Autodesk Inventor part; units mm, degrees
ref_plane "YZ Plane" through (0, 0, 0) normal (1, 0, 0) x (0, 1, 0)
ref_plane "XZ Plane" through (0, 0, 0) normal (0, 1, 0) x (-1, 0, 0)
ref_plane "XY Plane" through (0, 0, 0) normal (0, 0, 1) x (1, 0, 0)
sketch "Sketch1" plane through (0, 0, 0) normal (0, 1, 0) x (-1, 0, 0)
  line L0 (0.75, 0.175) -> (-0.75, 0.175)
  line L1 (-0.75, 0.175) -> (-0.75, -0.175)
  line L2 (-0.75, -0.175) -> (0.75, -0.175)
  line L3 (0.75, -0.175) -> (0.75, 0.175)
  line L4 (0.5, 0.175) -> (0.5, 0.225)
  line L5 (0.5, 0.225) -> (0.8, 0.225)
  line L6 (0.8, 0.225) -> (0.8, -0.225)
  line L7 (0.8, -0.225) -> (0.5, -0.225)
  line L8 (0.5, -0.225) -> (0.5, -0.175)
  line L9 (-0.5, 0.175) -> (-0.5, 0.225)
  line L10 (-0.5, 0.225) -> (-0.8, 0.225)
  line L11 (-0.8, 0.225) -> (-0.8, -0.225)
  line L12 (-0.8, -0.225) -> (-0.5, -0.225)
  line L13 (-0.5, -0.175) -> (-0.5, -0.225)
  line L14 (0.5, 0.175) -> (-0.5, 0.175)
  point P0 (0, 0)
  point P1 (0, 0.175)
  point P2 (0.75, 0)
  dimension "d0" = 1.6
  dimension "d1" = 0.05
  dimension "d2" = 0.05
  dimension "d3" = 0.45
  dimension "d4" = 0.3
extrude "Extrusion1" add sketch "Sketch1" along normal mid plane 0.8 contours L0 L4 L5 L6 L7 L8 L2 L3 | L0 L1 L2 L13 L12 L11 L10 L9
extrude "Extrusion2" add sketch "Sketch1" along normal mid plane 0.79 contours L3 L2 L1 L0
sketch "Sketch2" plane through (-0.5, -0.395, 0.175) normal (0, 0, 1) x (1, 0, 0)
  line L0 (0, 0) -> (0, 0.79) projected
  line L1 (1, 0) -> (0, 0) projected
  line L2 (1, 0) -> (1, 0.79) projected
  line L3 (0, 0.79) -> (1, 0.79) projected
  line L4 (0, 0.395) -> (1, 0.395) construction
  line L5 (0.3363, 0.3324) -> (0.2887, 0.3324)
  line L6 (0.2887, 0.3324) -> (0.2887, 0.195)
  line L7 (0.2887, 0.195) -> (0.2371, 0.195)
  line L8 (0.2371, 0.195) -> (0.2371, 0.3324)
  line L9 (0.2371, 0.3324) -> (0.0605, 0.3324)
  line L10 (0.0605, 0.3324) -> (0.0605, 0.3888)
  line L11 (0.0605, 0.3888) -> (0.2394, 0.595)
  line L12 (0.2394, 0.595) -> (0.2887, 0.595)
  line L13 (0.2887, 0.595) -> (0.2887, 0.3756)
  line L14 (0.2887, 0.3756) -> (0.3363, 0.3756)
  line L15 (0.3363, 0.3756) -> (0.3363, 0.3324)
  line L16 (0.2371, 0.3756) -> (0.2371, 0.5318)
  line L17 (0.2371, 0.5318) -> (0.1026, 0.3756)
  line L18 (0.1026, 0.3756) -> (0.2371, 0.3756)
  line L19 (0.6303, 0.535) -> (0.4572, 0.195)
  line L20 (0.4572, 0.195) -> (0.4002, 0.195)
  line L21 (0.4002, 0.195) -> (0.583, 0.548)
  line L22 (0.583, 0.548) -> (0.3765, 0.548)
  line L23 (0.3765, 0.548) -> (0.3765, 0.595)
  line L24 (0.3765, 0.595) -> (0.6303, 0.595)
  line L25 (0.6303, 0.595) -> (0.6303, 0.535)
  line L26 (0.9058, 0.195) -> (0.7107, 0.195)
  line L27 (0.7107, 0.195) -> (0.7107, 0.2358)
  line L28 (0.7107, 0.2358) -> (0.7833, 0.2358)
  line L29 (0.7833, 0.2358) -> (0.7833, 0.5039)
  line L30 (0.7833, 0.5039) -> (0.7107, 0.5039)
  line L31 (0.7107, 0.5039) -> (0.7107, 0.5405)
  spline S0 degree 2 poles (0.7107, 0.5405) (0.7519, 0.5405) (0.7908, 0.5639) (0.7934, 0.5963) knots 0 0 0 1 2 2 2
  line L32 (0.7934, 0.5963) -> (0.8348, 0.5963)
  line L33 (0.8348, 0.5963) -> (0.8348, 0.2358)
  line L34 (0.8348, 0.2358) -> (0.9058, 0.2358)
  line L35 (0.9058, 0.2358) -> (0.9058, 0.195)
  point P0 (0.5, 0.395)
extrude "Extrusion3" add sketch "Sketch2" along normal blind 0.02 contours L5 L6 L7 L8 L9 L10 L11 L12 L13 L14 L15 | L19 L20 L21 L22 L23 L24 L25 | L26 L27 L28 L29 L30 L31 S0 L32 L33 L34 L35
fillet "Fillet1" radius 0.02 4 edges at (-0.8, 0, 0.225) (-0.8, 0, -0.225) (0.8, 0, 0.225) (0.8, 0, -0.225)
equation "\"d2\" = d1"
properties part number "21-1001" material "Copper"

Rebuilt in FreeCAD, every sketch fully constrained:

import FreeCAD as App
import Part
import Sketcher
Q = App.Units.Quantity


def edges_at(feature, points):
    """Names of the edges that pass closest to the given points."""
    edges = feature.Shape.Edges
    near = lambda p: min(range(len(edges)), key=lambda i: edges[i].distToShape(Part.Vertex(*p))[0])
    return sorted({f"Edge{near(p) + 1}" for p in points})


def add_polygon(sketch, points):
    """Adds a closed chain of lines whose ends are joined by coincident constraints."""
    first, n = sketch.GeometryCount, len(points)
    for a, b in zip(points, points[1:] + points[:1]):
        sketch.addGeometry(Part.LineSegment(App.Vector(*a, 0), App.Vector(*b, 0)), False)
    for i in range(n):
        sketch.addConstraint(Sketcher.Constraint("Coincident", first + i, 2, first + (i + 1) % n, 1))

doc = App.newDocument("Part")
params = doc.addObject("Spreadsheet::Sheet", "Params")
for row, (alias, value) in enumerate([
    ("sketch1_width", "0.3 mm"),
    ("sketch1_height", "0.05 mm"),
    ("sketch1_height2", "0.45 mm"),
    ("pad1_length", "0.8 mm"),
    ("sketch2_width", "1.5 mm"),
    ("sketch2_height", "0.35 mm"),
    ("pad2_length", "0.79 mm"),
    ("sketch3_height", "0.06 mm"),
    ("pad3_length", "0.02 mm"),
    ("fillet_radius", "0.02 mm"),
], start=1):
    params.set(f"A{row}", alias)
    params.set(f"B{row}", "=" + value)
    params.setAlias(f"B{row}", alias)

body = doc.addObject("PartDesign::Body", "Body")
body.AllowCompound = True

# Sketch on XZ plane
sketch1 = body.newObject("Sketcher::SketchObject", "Sketch")
sketch1.AttachmentSupport = (doc.getObject("XZ_Plane"), [""])
sketch1.MapMode = "FlatFace"
add_polygon(sketch1, [(-0.5, 0.17), (-0.75, 0.17), (-0.75, -0.17), (-0.5, -0.17), (-0.5, -0.23), (-0.8, -0.23), (-0.8, 0.23), (-0.5, 0.23)])  # lines 0-7
add_polygon(sketch1, [(0.75, 0.17), (0.5, 0.17), (0.5, 0.23), (0.8, 0.23), (0.8, -0.23), (0.5, -0.23), (0.5, -0.17), (0.75, -0.17)])  # lines 8-15
sketch1.addConstraint([
    Sketcher.Constraint("Horizontal", 0),
    Sketcher.Constraint("Vertical", 1),
    Sketcher.Constraint("Horizontal", 2),
    Sketcher.Constraint("Vertical", 3),
    Sketcher.Constraint("Horizontal", 4),
    Sketcher.Constraint("Vertical", 5),
    Sketcher.Constraint("Horizontal", 6),
    Sketcher.Constraint("Vertical", 7),
    Sketcher.Constraint("Horizontal", 8),
    Sketcher.Constraint("Vertical", 9),
    Sketcher.Constraint("Horizontal", 10),
    Sketcher.Constraint("Vertical", 11),
    Sketcher.Constraint("Horizontal", 12),
    Sketcher.Constraint("Vertical", 13),
    Sketcher.Constraint("Horizontal", 14),
    Sketcher.Constraint("Vertical", 15),
    Sketcher.Constraint("Symmetric", 2, 2, 8, 2, -1, 1),
    Sketcher.Constraint("Symmetric", 4, 2, 10, 2, -1, 1),
    Sketcher.Constraint("Symmetric", 6, 2, 12, 2, -1, 1),
    Sketcher.Constraint("Symmetric", 0, 2, 14, 2, -1, 1),
    Sketcher.Constraint("Symmetric", 7, 2, 8, 2, -2),
    Sketcher.Constraint("Horizontal", 6, 2, 9, 2),
    Sketcher.Constraint("DistanceX", 4, 2, 4, 1, Q("0.3 mm")),
    Sketcher.Constraint("DistanceY", 3, 2, 3, 1, Q("0.05 mm")),
    Sketcher.Constraint("DistanceY", 5, 1, 5, 2, Q("0.45 mm")),
    Sketcher.Constraint("DistanceX", 4, 2, 1, 2, Q("0.05 mm")),
    Sketcher.Constraint("DistanceX", 7, 2, 8, 2, Q("1 mm")),
])
sketch1.setExpression("Constraints[38]", "Params.sketch1_width")
sketch1.setExpression("Constraints[39]", "Params.sketch1_height")
sketch1.setExpression("Constraints[40]", "Params.sketch1_height2")
pad1 = body.newObject("PartDesign::Pad", "Pad")
pad1.Profile = sketch1
pad1.setExpression("Length", "Params.pad1_length")
pad1.Midplane = True

# Sketch on XZ plane
sketch2 = body.newObject("Sketcher::SketchObject", "Sketch001")
sketch2.AttachmentSupport = (doc.getObject("XZ_Plane"), [""])
sketch2.MapMode = "FlatFace"
add_polygon(sketch2, [(-0.75, -0.17), (-0.75, 0.17), (0.75, 0.17), (0.75, -0.17)])  # lines 0-3
sketch2.addConstraint([
    Sketcher.Constraint("Vertical", 0),
    Sketcher.Constraint("Horizontal", 1),
    Sketcher.Constraint("Vertical", 2),
    Sketcher.Constraint("Horizontal", 3),
    Sketcher.Constraint("Symmetric", 0, 2, 2, 2, -1, 1),
    Sketcher.Constraint("DistanceX", 1, 1, 1, 2, Q("1.5 mm")),
    Sketcher.Constraint("DistanceY", 0, 1, 0, 2, Q("0.35 mm")),
])
sketch2.setExpression("Constraints[9]", "Params.sketch2_width")
sketch2.setExpression("Constraints[10]", "Params.sketch2_height")
pad2 = body.newObject("PartDesign::Pad", "Pad001")
pad2.Profile = sketch2
pad2.setExpression("Length", "Params.pad2_length")
pad2.Midplane = True

# Sketch on XY plane
sketch3 = body.newObject("Sketcher::SketchObject", "Sketch002")
sketch3.AttachmentSupport = (doc.getObject("XY_Plane"), [""])
sketch3.MapMode = "FlatFace"
sketch3.AttachmentOffset = App.Placement(App.Vector(0, 0, 0.175), App.Rotation())
add_polygon(sketch3, [(-0.2113, -0.0626), (-0.1637, -0.0626), (-0.1637, -0.0194), (-0.2113, -0.0194), (-0.2113, 0.2), (-0.2606, 0.2), (-0.4395, -0.0062), (-0.4395, -0.0626), (-0.2629, -0.0626), (-0.2629, -0.2), (-0.2113, -0.2)])  # lines 0-10
add_polygon(sketch3, [(-0.2629, 0.1368), (-0.2629, -0.0194), (-0.3974, -0.0194)])  # lines 11-13
add_polygon(sketch3, [(-0.0428, -0.2), (0.1303, 0.14), (0.1303, 0.2), (-0.1235, 0.2), (-0.1235, 0.153), (0.083, 0.153), (-0.0998, -0.2)])  # lines 14-20
sketch3.addGeometry(Part.LineSegment(App.Vector(0.2107, -0.2, 0), App.Vector(0.4058, -0.2, 0)), False)  # 21
sketch3.addGeometry(Part.LineSegment(App.Vector(0.4058, -0.2, 0), App.Vector(0.4058, -0.1592, 0)), False)  # 22
sketch3.addGeometry(Part.LineSegment(App.Vector(0.4058, -0.1592, 0), App.Vector(0.3348, -0.1592, 0)), False)  # 23
sketch3.addGeometry(Part.LineSegment(App.Vector(0.3348, -0.1592, 0), App.Vector(0.3348, 0.2013, 0)), False)  # 24
sketch3.addGeometry(Part.LineSegment(App.Vector(0.3348, 0.2013, 0), App.Vector(0.2934, 0.2013, 0)), False)  # 25
sketch3.addGeometry(Part.BSplineCurve([App.Vector(0.2107, 0.1455, 0), App.Vector(0.2519, 0.1455, 0), App.Vector(0.2908, 0.1689, 0), App.Vector(0.2934, 0.2013, 0)], [3, 1, 3], [0, 1, 2], False, 2, [1, 1, 1, 1], False), False)  # 26
sketch3.addGeometry(Part.LineSegment(App.Vector(0.2107, 0.1455, 0), App.Vector(0.2107, 0.1089, 0)), False)  # 27
sketch3.addGeometry(Part.LineSegment(App.Vector(0.2107, 0.1089, 0), App.Vector(0.2833, 0.1089, 0)), False)  # 28
sketch3.addGeometry(Part.LineSegment(App.Vector(0.2833, 0.1089, 0), App.Vector(0.2833, -0.1592, 0)), False)  # 29
sketch3.addGeometry(Part.LineSegment(App.Vector(0.2833, -0.1592, 0), App.Vector(0.2107, -0.1592, 0)), False)  # 30
sketch3.addGeometry(Part.LineSegment(App.Vector(0.2107, -0.1592, 0), App.Vector(0.2107, -0.2, 0)), False)  # 31
sketch3.addConstraint([
    Sketcher.Constraint("Block", 26),
    Sketcher.Constraint("Coincident", 21, 2, 22, 1),
    Sketcher.Constraint("Coincident", 22, 2, 23, 1),
    Sketcher.Constraint("Coincident", 23, 2, 24, 1),
    Sketcher.Constraint("Coincident", 24, 2, 25, 1),
    Sketcher.Constraint("Coincident", 25, 2, 26, 2),
    Sketcher.Constraint("Coincident", 26, 1, 27, 1),
    Sketcher.Constraint("Coincident", 27, 2, 28, 1),
    Sketcher.Constraint("Coincident", 28, 2, 29, 1),
    Sketcher.Constraint("Coincident", 29, 2, 30, 1),
    Sketcher.Constraint("Coincident", 30, 2, 31, 1),
    Sketcher.Constraint("Coincident", 31, 2, 21, 1),
    Sketcher.Constraint("Horizontal", 0),
    Sketcher.Constraint("Vertical", 1),
    Sketcher.Constraint("Horizontal", 2),
    Sketcher.Constraint("Vertical", 3),
    Sketcher.Constraint("Horizontal", 4),
    Sketcher.Constraint("Vertical", 6),
    Sketcher.Constraint("Horizontal", 7),
    Sketcher.Constraint("Vertical", 8),
    Sketcher.Constraint("Horizontal", 9),
    Sketcher.Constraint("Vertical", 10),
    Sketcher.Constraint("Vertical", 11),
    Sketcher.Constraint("Horizontal", 12),
    Sketcher.Constraint("Vertical", 15),
    Sketcher.Constraint("Horizontal", 16),
    Sketcher.Constraint("Vertical", 17),
    Sketcher.Constraint("Horizontal", 18),
    Sketcher.Constraint("Horizontal", 20),
    Sketcher.Constraint("Horizontal", 21),
    Sketcher.Constraint("Vertical", 22),
    Sketcher.Constraint("Horizontal", 23),
    Sketcher.Constraint("Vertical", 24),
    Sketcher.Constraint("Horizontal", 25),
    Sketcher.Constraint("Vertical", 27),
    Sketcher.Constraint("Horizontal", 28),
    Sketcher.Constraint("Vertical", 29),
    Sketcher.Constraint("Horizontal", 30),
    Sketcher.Constraint("Vertical", 31),
    Sketcher.Constraint("Symmetric", 3, 2, 9, 2, -1),
    Sketcher.Constraint("Horizontal", 0, 2, 6, 2),
    Sketcher.Constraint("Horizontal", 2, 2, 11, 2),
    Sketcher.Constraint("Horizontal", 4, 2, 15, 2),
    Sketcher.Constraint("Horizontal", 9, 2, 19, 2),
    Sketcher.Constraint("Horizontal", 20, 2, 21, 2),
    Sketcher.Constraint("Horizontal", 23, 2, 29, 2),
    Sketcher.Constraint("Vertical", 8, 2, 11, 2),
    Sketcher.Constraint("Vertical", 27, 2, 30, 2),
    Sketcher.Constraint("DistanceY", 15, 1, 15, 2, Q("0.06 mm")),
    Sketcher.Constraint("DistanceY", -1, 1, 3, 2, Q("0.2 mm")),
    Sketcher.Constraint("Angle", 13, Q("49.269 deg")),
    Sketcher.Constraint("DistanceX", 20, 1, 20, 2, Q("0.057 mm")),
    Sketcher.Constraint("DistanceX", 21, 1, 21, 2, Q("0.195 mm")),
    Sketcher.Constraint("DistanceX", 23, 2, 23, 1, Q("0.071 mm")),
    Sketcher.Constraint("DistanceY", 17, 2, 17, 1, Q("0.047 mm")),
    Sketcher.Constraint("DistanceY", 29, 2, 29, 1, Q("0.268 mm")),
    Sketcher.Constraint("DistanceX", 28, 2, 25, 2, Q("0.01 mm")),
    Sketcher.Constraint("Distance", 5, Q("0.273 mm")),
    Sketcher.Constraint("DistanceX", 0, 1, 0, 2, Q("0.0476 mm")),
    Sketcher.Constraint("DistanceX", 4, 2, 4, 1, Q("0.0493 mm")),
    Sketcher.Constraint("DistanceX", 7, 1, 7, 2, Q("0.1766 mm")),
    Sketcher.Constraint("DistanceX", 9, 1, 9, 2, Q("0.0516 mm")),
    Sketcher.Constraint("DistanceX", 12, 2, 12, 1, Q("0.1345 mm")),
    Sketcher.Constraint("DistanceX", 16, 2, 16, 1, Q("0.2538 mm")),
    Sketcher.Constraint("DistanceX", 18, 1, 18, 2, Q("0.2065 mm")),
    Sketcher.Constraint("DistanceY", 1, 1, 1, 2, Q("0.0432 mm")),
    Sketcher.Constraint("DistanceY", 3, 1, 3, 2, Q("0.2194 mm")),
    Sketcher.Constraint("DistanceY", 22, 1, 22, 2, Q("0.0408 mm")),
    Sketcher.Constraint("DistanceX", 7, 2, -1, 1, Q("0.263 mm")),
    Sketcher.Constraint("DistanceX", -1, 1, 18, 2, Q("0.083 mm")),
    Sketcher.Constraint("DistanceX", 0, 2, 19, 2, Q("0.064 mm")),
])
sketch3.setExpression("Constraints[69]", "Params.sketch3_height")
pad3 = body.newObject("PartDesign::Pad", "Pad002")
pad3.Profile = sketch3
pad3.setExpression("Length", "Params.pad3_length")
doc.recompute()

fillet = body.newObject("PartDesign::Fillet", "Fillet")
fillet.Base = (pad3, edges_at(pad3, [
    (-0.8, 0, 0.225),
    (-0.8, 0, -0.225),
    (0.8, 0, 0.225),
    (0.8, 0, -0.225),
]))
fillet.setExpression("Radius", "Params.fillet_radius")

doc.recompute()
